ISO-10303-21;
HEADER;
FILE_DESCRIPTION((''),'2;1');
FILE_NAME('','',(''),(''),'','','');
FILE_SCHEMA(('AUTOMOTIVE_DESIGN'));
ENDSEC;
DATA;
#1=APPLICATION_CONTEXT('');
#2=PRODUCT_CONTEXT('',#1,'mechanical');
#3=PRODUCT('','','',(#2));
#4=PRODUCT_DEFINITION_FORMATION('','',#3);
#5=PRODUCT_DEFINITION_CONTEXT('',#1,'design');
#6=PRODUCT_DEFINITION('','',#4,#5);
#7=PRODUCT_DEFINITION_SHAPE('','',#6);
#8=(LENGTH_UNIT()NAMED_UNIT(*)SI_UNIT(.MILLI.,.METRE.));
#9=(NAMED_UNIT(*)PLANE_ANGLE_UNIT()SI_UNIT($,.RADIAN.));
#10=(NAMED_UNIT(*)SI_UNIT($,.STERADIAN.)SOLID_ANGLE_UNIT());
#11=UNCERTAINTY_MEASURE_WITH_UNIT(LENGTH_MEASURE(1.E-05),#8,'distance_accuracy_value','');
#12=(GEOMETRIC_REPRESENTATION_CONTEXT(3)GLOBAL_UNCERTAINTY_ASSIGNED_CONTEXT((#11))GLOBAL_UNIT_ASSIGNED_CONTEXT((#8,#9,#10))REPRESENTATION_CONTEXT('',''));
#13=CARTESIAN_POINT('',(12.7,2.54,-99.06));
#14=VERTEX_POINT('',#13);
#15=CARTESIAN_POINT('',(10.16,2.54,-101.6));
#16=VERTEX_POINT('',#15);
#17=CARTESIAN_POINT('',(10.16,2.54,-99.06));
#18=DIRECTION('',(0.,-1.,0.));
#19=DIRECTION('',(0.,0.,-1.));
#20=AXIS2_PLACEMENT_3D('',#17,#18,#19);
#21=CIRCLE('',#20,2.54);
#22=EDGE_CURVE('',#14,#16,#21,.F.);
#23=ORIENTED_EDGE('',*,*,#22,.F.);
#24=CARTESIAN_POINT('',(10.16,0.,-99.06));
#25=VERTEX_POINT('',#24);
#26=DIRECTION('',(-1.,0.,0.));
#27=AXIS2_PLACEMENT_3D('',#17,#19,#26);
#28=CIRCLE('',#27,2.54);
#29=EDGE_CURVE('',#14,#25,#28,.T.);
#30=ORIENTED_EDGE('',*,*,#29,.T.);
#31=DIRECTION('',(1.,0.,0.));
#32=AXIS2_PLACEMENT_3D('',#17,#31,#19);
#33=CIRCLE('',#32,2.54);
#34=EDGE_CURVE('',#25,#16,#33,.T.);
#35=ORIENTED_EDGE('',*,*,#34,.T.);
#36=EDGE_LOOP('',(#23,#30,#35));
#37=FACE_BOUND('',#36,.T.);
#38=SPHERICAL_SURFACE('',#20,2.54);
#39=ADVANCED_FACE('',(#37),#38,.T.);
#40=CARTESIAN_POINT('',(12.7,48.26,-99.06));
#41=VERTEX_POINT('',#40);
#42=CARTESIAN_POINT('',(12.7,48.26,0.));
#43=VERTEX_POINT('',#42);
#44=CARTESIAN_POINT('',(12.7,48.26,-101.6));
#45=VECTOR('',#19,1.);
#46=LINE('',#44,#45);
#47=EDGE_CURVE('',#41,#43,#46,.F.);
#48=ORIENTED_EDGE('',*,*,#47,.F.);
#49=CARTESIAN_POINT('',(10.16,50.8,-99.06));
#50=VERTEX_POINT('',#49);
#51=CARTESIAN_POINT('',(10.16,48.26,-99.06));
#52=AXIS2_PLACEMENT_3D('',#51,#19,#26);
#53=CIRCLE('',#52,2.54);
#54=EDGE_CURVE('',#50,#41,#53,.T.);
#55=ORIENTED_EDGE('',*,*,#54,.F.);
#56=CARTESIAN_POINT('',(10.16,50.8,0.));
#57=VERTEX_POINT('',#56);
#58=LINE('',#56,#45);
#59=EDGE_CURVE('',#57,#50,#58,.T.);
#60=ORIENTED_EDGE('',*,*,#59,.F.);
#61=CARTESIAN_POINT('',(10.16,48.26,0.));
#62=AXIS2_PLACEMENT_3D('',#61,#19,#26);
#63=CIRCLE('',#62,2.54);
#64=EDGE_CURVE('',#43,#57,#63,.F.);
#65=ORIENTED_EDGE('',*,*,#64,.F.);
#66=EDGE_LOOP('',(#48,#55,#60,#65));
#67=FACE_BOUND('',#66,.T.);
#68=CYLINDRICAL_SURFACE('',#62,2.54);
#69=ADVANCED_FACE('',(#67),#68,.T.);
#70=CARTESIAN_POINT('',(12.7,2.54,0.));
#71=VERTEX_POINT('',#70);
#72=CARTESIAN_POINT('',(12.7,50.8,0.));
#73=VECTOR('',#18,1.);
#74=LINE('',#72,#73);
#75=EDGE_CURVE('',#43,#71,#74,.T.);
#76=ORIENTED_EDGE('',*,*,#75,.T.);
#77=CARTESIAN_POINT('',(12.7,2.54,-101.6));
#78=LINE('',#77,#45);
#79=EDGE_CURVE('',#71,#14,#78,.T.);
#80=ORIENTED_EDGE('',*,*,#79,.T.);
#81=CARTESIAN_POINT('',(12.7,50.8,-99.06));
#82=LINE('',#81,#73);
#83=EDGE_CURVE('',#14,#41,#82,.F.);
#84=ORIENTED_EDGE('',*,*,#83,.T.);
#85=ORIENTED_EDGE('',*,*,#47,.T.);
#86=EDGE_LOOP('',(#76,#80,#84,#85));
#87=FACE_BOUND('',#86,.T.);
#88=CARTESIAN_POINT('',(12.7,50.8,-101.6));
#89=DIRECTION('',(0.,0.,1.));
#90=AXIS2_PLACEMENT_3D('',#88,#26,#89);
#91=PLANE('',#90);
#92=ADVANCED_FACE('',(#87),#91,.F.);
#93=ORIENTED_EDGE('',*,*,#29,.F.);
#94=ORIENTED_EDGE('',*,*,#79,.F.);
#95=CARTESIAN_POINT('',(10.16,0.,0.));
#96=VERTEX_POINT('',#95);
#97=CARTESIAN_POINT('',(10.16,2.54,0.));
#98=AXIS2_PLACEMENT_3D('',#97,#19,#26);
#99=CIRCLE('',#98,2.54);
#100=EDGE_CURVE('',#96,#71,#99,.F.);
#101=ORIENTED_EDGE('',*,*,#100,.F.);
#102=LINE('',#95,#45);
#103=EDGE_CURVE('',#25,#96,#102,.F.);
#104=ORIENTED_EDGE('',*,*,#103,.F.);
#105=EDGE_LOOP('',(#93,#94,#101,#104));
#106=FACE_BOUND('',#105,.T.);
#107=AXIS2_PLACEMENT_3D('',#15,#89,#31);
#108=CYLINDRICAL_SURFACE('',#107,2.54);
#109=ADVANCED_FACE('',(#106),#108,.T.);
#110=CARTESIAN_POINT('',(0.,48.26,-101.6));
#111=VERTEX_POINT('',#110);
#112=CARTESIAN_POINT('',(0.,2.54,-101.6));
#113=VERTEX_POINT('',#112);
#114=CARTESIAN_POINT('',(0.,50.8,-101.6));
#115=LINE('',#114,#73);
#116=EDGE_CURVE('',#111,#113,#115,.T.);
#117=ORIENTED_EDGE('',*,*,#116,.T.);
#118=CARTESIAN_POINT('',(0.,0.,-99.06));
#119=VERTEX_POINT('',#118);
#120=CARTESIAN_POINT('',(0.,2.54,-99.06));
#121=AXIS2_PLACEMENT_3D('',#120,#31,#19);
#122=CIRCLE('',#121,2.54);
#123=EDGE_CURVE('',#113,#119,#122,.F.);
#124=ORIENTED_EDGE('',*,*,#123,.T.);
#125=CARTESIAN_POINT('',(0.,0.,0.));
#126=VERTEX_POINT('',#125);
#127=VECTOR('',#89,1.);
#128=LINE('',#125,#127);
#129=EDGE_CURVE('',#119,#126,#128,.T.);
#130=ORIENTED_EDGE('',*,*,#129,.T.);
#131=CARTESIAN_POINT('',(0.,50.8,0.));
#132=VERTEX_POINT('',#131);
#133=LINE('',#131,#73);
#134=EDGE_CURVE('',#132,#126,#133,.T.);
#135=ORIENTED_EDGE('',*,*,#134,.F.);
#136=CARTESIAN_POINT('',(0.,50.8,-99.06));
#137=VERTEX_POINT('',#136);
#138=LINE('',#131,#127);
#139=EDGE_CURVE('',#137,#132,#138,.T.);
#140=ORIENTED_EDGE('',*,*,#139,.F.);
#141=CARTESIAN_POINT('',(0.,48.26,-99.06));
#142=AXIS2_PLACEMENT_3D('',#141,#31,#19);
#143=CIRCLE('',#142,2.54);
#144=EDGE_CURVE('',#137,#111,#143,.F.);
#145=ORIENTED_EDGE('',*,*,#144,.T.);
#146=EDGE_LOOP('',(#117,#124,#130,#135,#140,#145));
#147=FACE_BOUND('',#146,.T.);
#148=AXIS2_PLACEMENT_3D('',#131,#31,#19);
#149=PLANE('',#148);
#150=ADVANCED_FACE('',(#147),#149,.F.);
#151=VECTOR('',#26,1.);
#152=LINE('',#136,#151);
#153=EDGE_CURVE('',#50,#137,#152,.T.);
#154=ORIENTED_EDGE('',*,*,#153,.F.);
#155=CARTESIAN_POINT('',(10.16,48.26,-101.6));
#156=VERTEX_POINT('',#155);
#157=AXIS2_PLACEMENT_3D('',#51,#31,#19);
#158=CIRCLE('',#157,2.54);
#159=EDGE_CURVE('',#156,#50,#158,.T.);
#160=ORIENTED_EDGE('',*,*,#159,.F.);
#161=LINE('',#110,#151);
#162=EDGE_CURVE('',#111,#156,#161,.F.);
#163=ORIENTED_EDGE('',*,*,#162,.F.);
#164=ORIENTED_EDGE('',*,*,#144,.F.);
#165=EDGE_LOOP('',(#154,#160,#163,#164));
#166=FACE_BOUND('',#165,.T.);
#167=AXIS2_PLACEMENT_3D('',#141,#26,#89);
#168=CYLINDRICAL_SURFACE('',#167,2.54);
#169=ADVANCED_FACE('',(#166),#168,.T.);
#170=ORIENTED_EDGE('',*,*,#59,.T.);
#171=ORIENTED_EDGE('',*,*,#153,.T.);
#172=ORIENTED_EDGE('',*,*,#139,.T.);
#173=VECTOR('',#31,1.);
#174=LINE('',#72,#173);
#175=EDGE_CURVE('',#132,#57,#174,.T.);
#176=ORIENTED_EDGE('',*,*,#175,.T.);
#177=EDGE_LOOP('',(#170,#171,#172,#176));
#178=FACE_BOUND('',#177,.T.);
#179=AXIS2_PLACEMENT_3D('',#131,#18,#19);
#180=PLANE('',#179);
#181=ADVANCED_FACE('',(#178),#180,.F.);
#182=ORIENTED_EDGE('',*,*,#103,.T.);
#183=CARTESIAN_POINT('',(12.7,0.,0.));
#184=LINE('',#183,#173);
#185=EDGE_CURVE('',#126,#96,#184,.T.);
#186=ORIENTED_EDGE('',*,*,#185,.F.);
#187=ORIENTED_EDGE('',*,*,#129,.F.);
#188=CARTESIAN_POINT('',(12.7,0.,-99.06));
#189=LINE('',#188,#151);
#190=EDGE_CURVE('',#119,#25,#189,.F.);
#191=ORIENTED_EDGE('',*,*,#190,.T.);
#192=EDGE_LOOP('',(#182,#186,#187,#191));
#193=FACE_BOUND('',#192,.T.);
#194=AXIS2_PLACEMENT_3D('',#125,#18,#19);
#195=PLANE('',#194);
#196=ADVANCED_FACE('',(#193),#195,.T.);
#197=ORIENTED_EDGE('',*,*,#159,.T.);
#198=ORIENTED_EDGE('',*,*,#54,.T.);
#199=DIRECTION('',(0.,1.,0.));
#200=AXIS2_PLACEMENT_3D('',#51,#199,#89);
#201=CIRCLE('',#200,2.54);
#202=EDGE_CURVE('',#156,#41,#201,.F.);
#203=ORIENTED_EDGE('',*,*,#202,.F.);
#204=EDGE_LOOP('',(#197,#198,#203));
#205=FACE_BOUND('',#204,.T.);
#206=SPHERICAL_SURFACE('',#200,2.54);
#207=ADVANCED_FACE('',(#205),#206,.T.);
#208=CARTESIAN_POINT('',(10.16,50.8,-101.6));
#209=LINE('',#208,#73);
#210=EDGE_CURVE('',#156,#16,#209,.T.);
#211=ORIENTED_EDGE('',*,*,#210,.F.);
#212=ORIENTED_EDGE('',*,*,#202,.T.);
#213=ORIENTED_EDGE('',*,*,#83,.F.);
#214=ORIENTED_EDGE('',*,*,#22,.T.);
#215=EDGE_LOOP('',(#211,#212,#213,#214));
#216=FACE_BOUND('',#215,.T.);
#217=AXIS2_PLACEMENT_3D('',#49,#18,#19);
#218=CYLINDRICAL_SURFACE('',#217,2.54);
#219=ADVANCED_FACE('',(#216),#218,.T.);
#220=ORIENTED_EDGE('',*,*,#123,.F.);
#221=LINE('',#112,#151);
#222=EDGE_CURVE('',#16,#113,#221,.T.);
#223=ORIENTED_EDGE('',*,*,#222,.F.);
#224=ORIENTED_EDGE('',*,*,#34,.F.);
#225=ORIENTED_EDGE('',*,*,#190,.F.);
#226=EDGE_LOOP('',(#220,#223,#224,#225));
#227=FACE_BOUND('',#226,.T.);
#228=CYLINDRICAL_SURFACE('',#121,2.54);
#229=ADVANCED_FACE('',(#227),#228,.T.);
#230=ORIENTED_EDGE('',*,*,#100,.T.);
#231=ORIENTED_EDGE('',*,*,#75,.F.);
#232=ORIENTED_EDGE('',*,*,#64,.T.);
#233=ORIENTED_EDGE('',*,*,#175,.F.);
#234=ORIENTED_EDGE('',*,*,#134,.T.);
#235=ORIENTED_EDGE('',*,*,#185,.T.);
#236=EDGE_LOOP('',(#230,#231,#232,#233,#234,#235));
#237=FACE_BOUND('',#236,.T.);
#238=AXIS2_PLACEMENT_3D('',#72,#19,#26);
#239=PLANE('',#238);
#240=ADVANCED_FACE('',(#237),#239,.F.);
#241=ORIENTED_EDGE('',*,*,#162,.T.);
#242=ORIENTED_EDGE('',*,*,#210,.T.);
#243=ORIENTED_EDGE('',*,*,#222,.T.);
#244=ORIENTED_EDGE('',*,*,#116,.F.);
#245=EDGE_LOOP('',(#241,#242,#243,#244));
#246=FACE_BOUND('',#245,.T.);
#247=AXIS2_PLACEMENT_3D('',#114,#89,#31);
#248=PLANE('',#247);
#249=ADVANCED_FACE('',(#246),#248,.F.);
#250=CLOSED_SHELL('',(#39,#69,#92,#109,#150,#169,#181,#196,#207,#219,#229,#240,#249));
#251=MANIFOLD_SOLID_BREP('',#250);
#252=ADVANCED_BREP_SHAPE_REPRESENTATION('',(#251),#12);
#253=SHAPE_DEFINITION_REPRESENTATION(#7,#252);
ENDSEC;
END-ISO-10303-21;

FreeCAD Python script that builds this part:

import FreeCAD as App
import Part
import Sketcher
from FreeCAD import Vector
Q = App.Units.Quantity


def edges_at(feature, points):
    """Names of the edges that pass closest to the given points."""
    edges = feature.Shape.Edges
    near = lambda p: min(range(len(edges)), key=lambda i: edges[i].distToShape(Part.Vertex(*p))[0])
    return sorted({f"Edge{near(p) + 1}" for p in points})

doc = App.newDocument("Part")
body = doc.addObject("PartDesign::Body", "Body")

sketch1 = body.newObject("Sketcher::SketchObject", "Sketch")
sketch1.AttachmentSupport = (doc.getObject("XZ_Plane"), [""])
sketch1.MapMode = "FlatFace"
sketch1.addGeometry([
    Part.LineSegment(Vector(0, -102, 0), Vector(0, 0, 0)),
    Part.LineSegment(Vector(0, 0, 0), Vector(13, 0, 0)),
    Part.LineSegment(Vector(13, 0, 0), Vector(13, -102, 0)),
    Part.LineSegment(Vector(13, -102, 0), Vector(0, -102, 0)),
], False)
sketch1.addConstraint([
    Sketcher.Constraint("Coincident", 0, 2, 1, 1),
    Sketcher.Constraint("Coincident", 1, 2, 2, 1),
    Sketcher.Constraint("Coincident", 2, 2, 3, 1),
    Sketcher.Constraint("Coincident", 3, 2, 0, 1),
    Sketcher.Constraint("Vertical", 0),
    Sketcher.Constraint("Horizontal", 1),
    Sketcher.Constraint("Vertical", 2),
    Sketcher.Constraint("Horizontal", 3),
    Sketcher.Constraint("Coincident", 0, 2, -1, 1),
    Sketcher.Constraint("DistanceY", 0, 1, 0, 2, Q("4 in")),
    Sketcher.Constraint("DistanceX", 1, 1, 1, 2, Q("0.5 in")),
])
pad1 = body.newObject("PartDesign::Pad", "Pad")
pad1.Profile = sketch1
pad1.Length = Q("2 in")
pad1.Reversed = True
doc.recompute()

fillet = body.newObject("PartDesign::Fillet", "Fillet")
fillet.Base = (pad1, edges_at(pad1, [
    (6.35, 50.8, -101.6),
    (6.35, 0, -101.6),
    (12.7, 0, -50.8),
    (12.7, 25.4, -101.6),
    (12.7, 50.8, -50.8),
]))
fillet.Radius = Q("0.1 in")

doc.recompute()
